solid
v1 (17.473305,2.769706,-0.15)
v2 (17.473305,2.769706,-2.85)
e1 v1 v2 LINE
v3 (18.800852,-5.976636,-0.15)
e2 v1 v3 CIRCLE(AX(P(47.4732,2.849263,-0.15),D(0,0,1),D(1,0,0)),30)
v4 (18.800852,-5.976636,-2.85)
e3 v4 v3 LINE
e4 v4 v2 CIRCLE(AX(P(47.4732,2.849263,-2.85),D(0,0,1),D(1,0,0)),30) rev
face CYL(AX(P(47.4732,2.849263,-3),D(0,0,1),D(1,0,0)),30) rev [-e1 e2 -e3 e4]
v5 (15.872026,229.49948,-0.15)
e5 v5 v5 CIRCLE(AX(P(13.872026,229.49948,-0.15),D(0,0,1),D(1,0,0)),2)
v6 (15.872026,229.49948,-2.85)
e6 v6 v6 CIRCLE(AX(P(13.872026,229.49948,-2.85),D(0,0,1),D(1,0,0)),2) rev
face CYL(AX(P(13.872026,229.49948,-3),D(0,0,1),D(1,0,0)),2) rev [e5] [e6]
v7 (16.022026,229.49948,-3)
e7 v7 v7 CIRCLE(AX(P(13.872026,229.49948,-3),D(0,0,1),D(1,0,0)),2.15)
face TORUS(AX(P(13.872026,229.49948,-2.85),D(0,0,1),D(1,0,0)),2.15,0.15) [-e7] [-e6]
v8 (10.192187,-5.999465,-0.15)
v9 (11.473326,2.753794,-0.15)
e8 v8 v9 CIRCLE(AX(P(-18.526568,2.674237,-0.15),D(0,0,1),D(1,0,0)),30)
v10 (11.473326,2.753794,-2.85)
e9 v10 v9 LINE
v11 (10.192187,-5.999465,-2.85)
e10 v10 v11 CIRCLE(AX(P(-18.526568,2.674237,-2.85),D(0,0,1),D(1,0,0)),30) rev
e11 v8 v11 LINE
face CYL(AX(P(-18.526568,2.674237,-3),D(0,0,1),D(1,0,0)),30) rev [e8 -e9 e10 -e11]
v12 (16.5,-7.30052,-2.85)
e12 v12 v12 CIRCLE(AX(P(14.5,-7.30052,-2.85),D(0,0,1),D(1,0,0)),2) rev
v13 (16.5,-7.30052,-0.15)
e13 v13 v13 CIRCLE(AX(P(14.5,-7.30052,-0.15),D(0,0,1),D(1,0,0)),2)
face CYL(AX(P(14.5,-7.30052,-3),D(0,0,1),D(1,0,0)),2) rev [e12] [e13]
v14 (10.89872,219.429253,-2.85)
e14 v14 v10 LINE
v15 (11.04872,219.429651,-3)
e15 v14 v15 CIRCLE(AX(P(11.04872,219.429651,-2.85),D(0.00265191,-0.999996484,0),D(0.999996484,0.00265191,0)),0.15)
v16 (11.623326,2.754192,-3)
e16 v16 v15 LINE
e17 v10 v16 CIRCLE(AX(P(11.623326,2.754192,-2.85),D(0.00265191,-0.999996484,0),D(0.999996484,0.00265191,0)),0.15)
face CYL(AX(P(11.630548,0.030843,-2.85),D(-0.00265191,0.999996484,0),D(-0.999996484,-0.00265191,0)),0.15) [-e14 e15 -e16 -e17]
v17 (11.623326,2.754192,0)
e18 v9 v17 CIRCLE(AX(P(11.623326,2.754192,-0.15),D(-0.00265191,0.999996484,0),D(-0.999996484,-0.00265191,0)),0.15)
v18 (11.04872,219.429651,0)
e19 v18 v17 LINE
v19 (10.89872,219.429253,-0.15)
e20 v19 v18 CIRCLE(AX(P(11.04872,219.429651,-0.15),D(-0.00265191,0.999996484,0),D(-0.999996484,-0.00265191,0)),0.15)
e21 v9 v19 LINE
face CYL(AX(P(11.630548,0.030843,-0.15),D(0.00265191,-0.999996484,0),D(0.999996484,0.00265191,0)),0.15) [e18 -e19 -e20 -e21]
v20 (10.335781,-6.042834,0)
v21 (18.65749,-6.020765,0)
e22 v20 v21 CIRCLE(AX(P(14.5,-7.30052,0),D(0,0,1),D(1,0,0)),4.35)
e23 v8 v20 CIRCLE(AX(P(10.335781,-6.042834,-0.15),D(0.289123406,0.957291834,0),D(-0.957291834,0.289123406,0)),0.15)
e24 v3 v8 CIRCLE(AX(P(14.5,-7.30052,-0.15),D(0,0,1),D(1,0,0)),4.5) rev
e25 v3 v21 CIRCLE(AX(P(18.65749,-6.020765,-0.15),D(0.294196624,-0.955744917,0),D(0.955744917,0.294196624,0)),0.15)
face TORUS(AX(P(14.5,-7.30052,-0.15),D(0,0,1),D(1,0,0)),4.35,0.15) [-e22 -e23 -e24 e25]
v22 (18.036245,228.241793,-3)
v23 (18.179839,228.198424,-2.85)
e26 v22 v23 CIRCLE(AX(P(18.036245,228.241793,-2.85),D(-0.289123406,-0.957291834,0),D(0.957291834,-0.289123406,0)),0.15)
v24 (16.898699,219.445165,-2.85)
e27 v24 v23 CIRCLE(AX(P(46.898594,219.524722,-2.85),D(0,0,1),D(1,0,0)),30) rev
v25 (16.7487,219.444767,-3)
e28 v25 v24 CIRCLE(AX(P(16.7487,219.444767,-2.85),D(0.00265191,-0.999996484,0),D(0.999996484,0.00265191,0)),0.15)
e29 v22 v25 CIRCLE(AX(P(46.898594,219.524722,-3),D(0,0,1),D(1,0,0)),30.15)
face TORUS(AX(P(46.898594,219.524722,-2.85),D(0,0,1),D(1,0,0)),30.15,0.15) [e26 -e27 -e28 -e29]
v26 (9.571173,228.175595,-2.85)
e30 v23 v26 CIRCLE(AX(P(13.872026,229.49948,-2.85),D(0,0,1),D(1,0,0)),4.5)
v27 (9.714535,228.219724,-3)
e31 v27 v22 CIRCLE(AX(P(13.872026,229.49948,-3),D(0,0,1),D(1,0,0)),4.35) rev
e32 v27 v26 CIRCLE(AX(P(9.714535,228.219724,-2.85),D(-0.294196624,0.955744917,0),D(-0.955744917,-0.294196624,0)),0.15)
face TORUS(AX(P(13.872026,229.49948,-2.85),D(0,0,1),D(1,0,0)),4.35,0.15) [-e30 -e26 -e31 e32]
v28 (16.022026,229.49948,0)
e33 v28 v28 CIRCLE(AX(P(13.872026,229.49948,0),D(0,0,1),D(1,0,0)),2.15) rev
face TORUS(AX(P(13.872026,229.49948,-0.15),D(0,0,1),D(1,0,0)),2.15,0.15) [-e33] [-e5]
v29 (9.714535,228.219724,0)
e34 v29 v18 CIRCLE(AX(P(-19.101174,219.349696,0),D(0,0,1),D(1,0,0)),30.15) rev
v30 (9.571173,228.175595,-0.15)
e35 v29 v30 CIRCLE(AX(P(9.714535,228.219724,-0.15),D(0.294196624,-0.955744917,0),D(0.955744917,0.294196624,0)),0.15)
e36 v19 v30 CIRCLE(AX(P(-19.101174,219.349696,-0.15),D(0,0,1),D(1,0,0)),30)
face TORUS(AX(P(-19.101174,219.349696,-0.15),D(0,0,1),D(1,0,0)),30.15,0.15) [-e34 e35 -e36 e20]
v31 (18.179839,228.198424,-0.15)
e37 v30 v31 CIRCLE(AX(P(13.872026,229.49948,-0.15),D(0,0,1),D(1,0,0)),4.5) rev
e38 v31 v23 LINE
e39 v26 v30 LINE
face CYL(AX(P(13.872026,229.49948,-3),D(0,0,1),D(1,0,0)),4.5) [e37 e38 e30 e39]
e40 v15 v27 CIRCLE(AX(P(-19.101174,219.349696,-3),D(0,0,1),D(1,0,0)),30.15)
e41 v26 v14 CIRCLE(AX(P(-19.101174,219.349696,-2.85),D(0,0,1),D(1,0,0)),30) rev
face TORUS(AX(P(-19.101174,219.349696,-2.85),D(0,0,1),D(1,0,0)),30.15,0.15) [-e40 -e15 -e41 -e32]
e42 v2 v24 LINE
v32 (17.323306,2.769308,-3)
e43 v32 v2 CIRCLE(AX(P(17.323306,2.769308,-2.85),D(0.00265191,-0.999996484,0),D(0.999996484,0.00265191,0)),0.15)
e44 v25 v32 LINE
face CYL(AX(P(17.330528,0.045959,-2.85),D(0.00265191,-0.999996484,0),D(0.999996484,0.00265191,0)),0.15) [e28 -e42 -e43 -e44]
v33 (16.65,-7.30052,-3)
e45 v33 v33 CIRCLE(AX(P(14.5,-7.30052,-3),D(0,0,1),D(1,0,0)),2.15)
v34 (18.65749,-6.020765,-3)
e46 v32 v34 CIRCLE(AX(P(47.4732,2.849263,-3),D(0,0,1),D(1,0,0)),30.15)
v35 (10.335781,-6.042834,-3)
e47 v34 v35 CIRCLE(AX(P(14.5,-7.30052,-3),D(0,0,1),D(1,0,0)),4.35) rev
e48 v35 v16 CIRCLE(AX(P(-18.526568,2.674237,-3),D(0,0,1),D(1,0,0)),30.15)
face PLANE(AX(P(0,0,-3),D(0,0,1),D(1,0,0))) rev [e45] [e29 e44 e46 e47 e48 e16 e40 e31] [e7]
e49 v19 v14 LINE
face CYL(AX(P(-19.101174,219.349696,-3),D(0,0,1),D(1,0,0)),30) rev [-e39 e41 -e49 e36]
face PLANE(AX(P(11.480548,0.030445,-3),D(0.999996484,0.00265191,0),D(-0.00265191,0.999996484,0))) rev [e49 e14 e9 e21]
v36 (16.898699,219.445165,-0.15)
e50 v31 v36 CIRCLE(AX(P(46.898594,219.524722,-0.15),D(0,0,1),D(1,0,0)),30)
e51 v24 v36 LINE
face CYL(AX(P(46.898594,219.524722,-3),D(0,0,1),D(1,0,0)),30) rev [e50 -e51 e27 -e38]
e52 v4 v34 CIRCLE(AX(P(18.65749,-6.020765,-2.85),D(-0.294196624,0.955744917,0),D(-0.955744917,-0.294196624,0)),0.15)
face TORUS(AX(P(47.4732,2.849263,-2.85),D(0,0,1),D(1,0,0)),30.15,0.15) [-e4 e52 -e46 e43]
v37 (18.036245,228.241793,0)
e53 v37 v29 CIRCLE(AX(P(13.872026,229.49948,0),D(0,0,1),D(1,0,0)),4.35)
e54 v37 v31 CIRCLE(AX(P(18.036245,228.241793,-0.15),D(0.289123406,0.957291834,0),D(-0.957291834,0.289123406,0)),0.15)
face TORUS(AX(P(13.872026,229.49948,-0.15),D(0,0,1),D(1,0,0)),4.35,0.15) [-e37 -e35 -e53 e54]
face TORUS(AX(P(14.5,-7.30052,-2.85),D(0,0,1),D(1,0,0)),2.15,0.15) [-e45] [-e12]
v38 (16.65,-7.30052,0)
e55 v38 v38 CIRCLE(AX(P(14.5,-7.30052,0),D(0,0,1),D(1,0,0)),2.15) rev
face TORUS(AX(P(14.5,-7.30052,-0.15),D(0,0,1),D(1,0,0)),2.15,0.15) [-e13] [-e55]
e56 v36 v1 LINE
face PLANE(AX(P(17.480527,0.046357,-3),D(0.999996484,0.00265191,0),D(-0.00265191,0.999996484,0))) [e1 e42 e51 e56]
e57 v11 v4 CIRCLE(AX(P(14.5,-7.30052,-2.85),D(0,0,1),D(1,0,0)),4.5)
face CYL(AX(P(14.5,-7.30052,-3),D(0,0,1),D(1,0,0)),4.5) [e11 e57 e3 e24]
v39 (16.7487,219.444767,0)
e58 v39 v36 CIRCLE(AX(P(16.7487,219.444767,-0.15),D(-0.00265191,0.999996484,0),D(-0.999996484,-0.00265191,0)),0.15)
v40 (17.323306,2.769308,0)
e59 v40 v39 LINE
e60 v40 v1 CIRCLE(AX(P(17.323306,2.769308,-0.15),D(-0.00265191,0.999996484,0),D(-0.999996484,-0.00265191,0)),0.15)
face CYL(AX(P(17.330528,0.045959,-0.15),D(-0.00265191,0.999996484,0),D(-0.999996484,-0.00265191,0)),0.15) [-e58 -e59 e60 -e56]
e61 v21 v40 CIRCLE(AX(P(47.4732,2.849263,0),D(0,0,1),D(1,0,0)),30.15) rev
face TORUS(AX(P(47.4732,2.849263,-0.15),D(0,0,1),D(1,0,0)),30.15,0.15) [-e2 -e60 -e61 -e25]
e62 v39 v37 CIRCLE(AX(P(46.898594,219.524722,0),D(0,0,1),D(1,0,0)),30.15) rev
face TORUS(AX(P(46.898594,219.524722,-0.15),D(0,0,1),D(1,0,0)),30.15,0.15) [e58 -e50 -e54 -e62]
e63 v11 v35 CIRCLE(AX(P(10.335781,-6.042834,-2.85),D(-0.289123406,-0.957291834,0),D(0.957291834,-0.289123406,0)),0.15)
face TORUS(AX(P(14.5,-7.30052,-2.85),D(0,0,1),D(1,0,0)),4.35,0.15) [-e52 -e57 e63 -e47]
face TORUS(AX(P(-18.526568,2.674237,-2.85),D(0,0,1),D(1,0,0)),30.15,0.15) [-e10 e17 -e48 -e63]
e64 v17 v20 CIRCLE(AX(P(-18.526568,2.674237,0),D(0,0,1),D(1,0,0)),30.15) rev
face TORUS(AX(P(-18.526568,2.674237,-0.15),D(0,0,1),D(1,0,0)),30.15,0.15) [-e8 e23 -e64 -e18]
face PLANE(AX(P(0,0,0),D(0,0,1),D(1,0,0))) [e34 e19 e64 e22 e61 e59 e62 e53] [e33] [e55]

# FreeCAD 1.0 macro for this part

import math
import FreeCAD as App
import Part
import Sketcher
from FreeCAD import Vector
Q = App.Units.Quantity


def edges_at(feature, points):
    """Names of the edges that pass closest to the given points."""
    edges = feature.Shape.Edges
    near = lambda p: min(range(len(edges)), key=lambda i: edges[i].distToShape(Part.Vertex(*p))[0])
    return sorted({f"Edge{near(p) + 1}" for p in points})

doc = App.newDocument("Part")
body = doc.addObject("PartDesign::Body", "Body")

sketch1 = body.newObject("Sketcher::SketchObject", "Sketch")
sketch1.AttachmentSupport = (doc.getObject("XY_Plane"), [""])
sketch1.MapMode = "FlatFace"
sketch1.addGeometry([
    Part.LineSegment(Vector(10.9, 226.1, 0), Vector(11.5, -4, 0)),
    Part.ArcOfCircle(Part.Circle(Vector(14.5, -7.3, 0), Vector(0, 0, 1), 4.5), math.radians(132), math.radians(408)),
    Part.LineSegment(Vector(17.5, -3.9, 0), Vector(16.9, 226.2, 0)),
    Part.ArcOfCircle(Part.Circle(Vector(13.9, 229.5, 0), Vector(0, 0, 1), 4.5), math.radians(-48), math.radians(228)),
    Part.Circle(Vector(14.5, -7.3, 0), Vector(0, 0, 1), 2),
    Part.Circle(Vector(13.9, 229.5, 0), Vector(0, 0, 1), 2),
], False)
sketch1.addConstraint([
    Sketcher.Constraint("Coincident", 0, 2, 1, 1),
    Sketcher.Constraint("Coincident", 1, 2, 2, 1),
    Sketcher.Constraint("Coincident", 2, 2, 3, 1),
    Sketcher.Constraint("Coincident", 3, 2, 0, 1),
    Sketcher.Constraint("Coincident", 4, 3, 1, 3),
    Sketcher.Constraint("Coincident", 5, 3, 3, 3),
    Sketcher.Constraint("Equal", 1, 3),
    Sketcher.Constraint("Equal", 4, 5),
    Sketcher.Constraint("Parallel", 0, 2),
    Sketcher.Constraint("Equal", 0, 2),
    Sketcher.Constraint("Diameter", 4, Q("4 mm")),
    Sketcher.Constraint("Radius", 1, Q("4.5 mm")),
    Sketcher.Constraint("DistanceX", -1, 1, 1, 3, Q("14.5 mm")),
    Sketcher.Constraint("DistanceY", 1, 3, 3, 3, Q("236.8 mm")),
    Sketcher.Constraint("Distance", 0, Q("230.092629 mm")),
    Sketcher.Constraint("DistanceY", 1, 3, -1, 1, Q("7.30052 mm")),
    Sketcher.Constraint("DistanceX", -1, 1, 2, 2, Q("16.88091 mm")),
    Sketcher.Constraint("DistanceY", 0, 2, 1, 2, Q("0.015911 mm")),
])
pad1 = body.newObject("PartDesign::Pad", "Pad")
pad1.Profile = sketch1
pad1.Length = 3
pad1.Reversed = True
doc.recompute()

fillet = body.newObject("PartDesign::Fillet", "Fillet")
fillet.Base = (pad1, edges_at(pad1, [
    (10.881, 226.137, -1.5),
    (16.881, 226.153, -1.5),
    (17.491, -3.938, -1.5),
    (11.491, -3.954, -1.5),
]))
fillet.Radius = 30
doc.recompute()

fillet2 = body.newObject("PartDesign::Fillet", "Fillet001")
fillet2.Base = (fillet, edges_at(fillet, [
    (12.5, -7.301, 0),
    (11.872, 229.499, -3),
    (14.512, -11.801, 0),
    (14.512, -11.801, -3),
    (17.186, 111.107, 0),
    (17.186, 111.107, -3),
    (11.186, 111.092, 0),
    (11.186, 111.092, -3),
    (13.86, 233.999, 0),
    (13.86, 233.999, -3),
    (17.813, -1.653, 0),
    (17.813, -1.653, -3),
    (11.157, -1.67, 0),
    (11.157, -1.67, -3),
    (10.559, 223.852, 0),
    (10.559, 223.852, -3),
    (17.215, 223.869, 0),
    (17.215, 223.869, -3),
    (12.5, -7.301, -3),
    (11.872, 229.499, 0),
]))
fillet2.Radius = 0.15

doc.recompute()
